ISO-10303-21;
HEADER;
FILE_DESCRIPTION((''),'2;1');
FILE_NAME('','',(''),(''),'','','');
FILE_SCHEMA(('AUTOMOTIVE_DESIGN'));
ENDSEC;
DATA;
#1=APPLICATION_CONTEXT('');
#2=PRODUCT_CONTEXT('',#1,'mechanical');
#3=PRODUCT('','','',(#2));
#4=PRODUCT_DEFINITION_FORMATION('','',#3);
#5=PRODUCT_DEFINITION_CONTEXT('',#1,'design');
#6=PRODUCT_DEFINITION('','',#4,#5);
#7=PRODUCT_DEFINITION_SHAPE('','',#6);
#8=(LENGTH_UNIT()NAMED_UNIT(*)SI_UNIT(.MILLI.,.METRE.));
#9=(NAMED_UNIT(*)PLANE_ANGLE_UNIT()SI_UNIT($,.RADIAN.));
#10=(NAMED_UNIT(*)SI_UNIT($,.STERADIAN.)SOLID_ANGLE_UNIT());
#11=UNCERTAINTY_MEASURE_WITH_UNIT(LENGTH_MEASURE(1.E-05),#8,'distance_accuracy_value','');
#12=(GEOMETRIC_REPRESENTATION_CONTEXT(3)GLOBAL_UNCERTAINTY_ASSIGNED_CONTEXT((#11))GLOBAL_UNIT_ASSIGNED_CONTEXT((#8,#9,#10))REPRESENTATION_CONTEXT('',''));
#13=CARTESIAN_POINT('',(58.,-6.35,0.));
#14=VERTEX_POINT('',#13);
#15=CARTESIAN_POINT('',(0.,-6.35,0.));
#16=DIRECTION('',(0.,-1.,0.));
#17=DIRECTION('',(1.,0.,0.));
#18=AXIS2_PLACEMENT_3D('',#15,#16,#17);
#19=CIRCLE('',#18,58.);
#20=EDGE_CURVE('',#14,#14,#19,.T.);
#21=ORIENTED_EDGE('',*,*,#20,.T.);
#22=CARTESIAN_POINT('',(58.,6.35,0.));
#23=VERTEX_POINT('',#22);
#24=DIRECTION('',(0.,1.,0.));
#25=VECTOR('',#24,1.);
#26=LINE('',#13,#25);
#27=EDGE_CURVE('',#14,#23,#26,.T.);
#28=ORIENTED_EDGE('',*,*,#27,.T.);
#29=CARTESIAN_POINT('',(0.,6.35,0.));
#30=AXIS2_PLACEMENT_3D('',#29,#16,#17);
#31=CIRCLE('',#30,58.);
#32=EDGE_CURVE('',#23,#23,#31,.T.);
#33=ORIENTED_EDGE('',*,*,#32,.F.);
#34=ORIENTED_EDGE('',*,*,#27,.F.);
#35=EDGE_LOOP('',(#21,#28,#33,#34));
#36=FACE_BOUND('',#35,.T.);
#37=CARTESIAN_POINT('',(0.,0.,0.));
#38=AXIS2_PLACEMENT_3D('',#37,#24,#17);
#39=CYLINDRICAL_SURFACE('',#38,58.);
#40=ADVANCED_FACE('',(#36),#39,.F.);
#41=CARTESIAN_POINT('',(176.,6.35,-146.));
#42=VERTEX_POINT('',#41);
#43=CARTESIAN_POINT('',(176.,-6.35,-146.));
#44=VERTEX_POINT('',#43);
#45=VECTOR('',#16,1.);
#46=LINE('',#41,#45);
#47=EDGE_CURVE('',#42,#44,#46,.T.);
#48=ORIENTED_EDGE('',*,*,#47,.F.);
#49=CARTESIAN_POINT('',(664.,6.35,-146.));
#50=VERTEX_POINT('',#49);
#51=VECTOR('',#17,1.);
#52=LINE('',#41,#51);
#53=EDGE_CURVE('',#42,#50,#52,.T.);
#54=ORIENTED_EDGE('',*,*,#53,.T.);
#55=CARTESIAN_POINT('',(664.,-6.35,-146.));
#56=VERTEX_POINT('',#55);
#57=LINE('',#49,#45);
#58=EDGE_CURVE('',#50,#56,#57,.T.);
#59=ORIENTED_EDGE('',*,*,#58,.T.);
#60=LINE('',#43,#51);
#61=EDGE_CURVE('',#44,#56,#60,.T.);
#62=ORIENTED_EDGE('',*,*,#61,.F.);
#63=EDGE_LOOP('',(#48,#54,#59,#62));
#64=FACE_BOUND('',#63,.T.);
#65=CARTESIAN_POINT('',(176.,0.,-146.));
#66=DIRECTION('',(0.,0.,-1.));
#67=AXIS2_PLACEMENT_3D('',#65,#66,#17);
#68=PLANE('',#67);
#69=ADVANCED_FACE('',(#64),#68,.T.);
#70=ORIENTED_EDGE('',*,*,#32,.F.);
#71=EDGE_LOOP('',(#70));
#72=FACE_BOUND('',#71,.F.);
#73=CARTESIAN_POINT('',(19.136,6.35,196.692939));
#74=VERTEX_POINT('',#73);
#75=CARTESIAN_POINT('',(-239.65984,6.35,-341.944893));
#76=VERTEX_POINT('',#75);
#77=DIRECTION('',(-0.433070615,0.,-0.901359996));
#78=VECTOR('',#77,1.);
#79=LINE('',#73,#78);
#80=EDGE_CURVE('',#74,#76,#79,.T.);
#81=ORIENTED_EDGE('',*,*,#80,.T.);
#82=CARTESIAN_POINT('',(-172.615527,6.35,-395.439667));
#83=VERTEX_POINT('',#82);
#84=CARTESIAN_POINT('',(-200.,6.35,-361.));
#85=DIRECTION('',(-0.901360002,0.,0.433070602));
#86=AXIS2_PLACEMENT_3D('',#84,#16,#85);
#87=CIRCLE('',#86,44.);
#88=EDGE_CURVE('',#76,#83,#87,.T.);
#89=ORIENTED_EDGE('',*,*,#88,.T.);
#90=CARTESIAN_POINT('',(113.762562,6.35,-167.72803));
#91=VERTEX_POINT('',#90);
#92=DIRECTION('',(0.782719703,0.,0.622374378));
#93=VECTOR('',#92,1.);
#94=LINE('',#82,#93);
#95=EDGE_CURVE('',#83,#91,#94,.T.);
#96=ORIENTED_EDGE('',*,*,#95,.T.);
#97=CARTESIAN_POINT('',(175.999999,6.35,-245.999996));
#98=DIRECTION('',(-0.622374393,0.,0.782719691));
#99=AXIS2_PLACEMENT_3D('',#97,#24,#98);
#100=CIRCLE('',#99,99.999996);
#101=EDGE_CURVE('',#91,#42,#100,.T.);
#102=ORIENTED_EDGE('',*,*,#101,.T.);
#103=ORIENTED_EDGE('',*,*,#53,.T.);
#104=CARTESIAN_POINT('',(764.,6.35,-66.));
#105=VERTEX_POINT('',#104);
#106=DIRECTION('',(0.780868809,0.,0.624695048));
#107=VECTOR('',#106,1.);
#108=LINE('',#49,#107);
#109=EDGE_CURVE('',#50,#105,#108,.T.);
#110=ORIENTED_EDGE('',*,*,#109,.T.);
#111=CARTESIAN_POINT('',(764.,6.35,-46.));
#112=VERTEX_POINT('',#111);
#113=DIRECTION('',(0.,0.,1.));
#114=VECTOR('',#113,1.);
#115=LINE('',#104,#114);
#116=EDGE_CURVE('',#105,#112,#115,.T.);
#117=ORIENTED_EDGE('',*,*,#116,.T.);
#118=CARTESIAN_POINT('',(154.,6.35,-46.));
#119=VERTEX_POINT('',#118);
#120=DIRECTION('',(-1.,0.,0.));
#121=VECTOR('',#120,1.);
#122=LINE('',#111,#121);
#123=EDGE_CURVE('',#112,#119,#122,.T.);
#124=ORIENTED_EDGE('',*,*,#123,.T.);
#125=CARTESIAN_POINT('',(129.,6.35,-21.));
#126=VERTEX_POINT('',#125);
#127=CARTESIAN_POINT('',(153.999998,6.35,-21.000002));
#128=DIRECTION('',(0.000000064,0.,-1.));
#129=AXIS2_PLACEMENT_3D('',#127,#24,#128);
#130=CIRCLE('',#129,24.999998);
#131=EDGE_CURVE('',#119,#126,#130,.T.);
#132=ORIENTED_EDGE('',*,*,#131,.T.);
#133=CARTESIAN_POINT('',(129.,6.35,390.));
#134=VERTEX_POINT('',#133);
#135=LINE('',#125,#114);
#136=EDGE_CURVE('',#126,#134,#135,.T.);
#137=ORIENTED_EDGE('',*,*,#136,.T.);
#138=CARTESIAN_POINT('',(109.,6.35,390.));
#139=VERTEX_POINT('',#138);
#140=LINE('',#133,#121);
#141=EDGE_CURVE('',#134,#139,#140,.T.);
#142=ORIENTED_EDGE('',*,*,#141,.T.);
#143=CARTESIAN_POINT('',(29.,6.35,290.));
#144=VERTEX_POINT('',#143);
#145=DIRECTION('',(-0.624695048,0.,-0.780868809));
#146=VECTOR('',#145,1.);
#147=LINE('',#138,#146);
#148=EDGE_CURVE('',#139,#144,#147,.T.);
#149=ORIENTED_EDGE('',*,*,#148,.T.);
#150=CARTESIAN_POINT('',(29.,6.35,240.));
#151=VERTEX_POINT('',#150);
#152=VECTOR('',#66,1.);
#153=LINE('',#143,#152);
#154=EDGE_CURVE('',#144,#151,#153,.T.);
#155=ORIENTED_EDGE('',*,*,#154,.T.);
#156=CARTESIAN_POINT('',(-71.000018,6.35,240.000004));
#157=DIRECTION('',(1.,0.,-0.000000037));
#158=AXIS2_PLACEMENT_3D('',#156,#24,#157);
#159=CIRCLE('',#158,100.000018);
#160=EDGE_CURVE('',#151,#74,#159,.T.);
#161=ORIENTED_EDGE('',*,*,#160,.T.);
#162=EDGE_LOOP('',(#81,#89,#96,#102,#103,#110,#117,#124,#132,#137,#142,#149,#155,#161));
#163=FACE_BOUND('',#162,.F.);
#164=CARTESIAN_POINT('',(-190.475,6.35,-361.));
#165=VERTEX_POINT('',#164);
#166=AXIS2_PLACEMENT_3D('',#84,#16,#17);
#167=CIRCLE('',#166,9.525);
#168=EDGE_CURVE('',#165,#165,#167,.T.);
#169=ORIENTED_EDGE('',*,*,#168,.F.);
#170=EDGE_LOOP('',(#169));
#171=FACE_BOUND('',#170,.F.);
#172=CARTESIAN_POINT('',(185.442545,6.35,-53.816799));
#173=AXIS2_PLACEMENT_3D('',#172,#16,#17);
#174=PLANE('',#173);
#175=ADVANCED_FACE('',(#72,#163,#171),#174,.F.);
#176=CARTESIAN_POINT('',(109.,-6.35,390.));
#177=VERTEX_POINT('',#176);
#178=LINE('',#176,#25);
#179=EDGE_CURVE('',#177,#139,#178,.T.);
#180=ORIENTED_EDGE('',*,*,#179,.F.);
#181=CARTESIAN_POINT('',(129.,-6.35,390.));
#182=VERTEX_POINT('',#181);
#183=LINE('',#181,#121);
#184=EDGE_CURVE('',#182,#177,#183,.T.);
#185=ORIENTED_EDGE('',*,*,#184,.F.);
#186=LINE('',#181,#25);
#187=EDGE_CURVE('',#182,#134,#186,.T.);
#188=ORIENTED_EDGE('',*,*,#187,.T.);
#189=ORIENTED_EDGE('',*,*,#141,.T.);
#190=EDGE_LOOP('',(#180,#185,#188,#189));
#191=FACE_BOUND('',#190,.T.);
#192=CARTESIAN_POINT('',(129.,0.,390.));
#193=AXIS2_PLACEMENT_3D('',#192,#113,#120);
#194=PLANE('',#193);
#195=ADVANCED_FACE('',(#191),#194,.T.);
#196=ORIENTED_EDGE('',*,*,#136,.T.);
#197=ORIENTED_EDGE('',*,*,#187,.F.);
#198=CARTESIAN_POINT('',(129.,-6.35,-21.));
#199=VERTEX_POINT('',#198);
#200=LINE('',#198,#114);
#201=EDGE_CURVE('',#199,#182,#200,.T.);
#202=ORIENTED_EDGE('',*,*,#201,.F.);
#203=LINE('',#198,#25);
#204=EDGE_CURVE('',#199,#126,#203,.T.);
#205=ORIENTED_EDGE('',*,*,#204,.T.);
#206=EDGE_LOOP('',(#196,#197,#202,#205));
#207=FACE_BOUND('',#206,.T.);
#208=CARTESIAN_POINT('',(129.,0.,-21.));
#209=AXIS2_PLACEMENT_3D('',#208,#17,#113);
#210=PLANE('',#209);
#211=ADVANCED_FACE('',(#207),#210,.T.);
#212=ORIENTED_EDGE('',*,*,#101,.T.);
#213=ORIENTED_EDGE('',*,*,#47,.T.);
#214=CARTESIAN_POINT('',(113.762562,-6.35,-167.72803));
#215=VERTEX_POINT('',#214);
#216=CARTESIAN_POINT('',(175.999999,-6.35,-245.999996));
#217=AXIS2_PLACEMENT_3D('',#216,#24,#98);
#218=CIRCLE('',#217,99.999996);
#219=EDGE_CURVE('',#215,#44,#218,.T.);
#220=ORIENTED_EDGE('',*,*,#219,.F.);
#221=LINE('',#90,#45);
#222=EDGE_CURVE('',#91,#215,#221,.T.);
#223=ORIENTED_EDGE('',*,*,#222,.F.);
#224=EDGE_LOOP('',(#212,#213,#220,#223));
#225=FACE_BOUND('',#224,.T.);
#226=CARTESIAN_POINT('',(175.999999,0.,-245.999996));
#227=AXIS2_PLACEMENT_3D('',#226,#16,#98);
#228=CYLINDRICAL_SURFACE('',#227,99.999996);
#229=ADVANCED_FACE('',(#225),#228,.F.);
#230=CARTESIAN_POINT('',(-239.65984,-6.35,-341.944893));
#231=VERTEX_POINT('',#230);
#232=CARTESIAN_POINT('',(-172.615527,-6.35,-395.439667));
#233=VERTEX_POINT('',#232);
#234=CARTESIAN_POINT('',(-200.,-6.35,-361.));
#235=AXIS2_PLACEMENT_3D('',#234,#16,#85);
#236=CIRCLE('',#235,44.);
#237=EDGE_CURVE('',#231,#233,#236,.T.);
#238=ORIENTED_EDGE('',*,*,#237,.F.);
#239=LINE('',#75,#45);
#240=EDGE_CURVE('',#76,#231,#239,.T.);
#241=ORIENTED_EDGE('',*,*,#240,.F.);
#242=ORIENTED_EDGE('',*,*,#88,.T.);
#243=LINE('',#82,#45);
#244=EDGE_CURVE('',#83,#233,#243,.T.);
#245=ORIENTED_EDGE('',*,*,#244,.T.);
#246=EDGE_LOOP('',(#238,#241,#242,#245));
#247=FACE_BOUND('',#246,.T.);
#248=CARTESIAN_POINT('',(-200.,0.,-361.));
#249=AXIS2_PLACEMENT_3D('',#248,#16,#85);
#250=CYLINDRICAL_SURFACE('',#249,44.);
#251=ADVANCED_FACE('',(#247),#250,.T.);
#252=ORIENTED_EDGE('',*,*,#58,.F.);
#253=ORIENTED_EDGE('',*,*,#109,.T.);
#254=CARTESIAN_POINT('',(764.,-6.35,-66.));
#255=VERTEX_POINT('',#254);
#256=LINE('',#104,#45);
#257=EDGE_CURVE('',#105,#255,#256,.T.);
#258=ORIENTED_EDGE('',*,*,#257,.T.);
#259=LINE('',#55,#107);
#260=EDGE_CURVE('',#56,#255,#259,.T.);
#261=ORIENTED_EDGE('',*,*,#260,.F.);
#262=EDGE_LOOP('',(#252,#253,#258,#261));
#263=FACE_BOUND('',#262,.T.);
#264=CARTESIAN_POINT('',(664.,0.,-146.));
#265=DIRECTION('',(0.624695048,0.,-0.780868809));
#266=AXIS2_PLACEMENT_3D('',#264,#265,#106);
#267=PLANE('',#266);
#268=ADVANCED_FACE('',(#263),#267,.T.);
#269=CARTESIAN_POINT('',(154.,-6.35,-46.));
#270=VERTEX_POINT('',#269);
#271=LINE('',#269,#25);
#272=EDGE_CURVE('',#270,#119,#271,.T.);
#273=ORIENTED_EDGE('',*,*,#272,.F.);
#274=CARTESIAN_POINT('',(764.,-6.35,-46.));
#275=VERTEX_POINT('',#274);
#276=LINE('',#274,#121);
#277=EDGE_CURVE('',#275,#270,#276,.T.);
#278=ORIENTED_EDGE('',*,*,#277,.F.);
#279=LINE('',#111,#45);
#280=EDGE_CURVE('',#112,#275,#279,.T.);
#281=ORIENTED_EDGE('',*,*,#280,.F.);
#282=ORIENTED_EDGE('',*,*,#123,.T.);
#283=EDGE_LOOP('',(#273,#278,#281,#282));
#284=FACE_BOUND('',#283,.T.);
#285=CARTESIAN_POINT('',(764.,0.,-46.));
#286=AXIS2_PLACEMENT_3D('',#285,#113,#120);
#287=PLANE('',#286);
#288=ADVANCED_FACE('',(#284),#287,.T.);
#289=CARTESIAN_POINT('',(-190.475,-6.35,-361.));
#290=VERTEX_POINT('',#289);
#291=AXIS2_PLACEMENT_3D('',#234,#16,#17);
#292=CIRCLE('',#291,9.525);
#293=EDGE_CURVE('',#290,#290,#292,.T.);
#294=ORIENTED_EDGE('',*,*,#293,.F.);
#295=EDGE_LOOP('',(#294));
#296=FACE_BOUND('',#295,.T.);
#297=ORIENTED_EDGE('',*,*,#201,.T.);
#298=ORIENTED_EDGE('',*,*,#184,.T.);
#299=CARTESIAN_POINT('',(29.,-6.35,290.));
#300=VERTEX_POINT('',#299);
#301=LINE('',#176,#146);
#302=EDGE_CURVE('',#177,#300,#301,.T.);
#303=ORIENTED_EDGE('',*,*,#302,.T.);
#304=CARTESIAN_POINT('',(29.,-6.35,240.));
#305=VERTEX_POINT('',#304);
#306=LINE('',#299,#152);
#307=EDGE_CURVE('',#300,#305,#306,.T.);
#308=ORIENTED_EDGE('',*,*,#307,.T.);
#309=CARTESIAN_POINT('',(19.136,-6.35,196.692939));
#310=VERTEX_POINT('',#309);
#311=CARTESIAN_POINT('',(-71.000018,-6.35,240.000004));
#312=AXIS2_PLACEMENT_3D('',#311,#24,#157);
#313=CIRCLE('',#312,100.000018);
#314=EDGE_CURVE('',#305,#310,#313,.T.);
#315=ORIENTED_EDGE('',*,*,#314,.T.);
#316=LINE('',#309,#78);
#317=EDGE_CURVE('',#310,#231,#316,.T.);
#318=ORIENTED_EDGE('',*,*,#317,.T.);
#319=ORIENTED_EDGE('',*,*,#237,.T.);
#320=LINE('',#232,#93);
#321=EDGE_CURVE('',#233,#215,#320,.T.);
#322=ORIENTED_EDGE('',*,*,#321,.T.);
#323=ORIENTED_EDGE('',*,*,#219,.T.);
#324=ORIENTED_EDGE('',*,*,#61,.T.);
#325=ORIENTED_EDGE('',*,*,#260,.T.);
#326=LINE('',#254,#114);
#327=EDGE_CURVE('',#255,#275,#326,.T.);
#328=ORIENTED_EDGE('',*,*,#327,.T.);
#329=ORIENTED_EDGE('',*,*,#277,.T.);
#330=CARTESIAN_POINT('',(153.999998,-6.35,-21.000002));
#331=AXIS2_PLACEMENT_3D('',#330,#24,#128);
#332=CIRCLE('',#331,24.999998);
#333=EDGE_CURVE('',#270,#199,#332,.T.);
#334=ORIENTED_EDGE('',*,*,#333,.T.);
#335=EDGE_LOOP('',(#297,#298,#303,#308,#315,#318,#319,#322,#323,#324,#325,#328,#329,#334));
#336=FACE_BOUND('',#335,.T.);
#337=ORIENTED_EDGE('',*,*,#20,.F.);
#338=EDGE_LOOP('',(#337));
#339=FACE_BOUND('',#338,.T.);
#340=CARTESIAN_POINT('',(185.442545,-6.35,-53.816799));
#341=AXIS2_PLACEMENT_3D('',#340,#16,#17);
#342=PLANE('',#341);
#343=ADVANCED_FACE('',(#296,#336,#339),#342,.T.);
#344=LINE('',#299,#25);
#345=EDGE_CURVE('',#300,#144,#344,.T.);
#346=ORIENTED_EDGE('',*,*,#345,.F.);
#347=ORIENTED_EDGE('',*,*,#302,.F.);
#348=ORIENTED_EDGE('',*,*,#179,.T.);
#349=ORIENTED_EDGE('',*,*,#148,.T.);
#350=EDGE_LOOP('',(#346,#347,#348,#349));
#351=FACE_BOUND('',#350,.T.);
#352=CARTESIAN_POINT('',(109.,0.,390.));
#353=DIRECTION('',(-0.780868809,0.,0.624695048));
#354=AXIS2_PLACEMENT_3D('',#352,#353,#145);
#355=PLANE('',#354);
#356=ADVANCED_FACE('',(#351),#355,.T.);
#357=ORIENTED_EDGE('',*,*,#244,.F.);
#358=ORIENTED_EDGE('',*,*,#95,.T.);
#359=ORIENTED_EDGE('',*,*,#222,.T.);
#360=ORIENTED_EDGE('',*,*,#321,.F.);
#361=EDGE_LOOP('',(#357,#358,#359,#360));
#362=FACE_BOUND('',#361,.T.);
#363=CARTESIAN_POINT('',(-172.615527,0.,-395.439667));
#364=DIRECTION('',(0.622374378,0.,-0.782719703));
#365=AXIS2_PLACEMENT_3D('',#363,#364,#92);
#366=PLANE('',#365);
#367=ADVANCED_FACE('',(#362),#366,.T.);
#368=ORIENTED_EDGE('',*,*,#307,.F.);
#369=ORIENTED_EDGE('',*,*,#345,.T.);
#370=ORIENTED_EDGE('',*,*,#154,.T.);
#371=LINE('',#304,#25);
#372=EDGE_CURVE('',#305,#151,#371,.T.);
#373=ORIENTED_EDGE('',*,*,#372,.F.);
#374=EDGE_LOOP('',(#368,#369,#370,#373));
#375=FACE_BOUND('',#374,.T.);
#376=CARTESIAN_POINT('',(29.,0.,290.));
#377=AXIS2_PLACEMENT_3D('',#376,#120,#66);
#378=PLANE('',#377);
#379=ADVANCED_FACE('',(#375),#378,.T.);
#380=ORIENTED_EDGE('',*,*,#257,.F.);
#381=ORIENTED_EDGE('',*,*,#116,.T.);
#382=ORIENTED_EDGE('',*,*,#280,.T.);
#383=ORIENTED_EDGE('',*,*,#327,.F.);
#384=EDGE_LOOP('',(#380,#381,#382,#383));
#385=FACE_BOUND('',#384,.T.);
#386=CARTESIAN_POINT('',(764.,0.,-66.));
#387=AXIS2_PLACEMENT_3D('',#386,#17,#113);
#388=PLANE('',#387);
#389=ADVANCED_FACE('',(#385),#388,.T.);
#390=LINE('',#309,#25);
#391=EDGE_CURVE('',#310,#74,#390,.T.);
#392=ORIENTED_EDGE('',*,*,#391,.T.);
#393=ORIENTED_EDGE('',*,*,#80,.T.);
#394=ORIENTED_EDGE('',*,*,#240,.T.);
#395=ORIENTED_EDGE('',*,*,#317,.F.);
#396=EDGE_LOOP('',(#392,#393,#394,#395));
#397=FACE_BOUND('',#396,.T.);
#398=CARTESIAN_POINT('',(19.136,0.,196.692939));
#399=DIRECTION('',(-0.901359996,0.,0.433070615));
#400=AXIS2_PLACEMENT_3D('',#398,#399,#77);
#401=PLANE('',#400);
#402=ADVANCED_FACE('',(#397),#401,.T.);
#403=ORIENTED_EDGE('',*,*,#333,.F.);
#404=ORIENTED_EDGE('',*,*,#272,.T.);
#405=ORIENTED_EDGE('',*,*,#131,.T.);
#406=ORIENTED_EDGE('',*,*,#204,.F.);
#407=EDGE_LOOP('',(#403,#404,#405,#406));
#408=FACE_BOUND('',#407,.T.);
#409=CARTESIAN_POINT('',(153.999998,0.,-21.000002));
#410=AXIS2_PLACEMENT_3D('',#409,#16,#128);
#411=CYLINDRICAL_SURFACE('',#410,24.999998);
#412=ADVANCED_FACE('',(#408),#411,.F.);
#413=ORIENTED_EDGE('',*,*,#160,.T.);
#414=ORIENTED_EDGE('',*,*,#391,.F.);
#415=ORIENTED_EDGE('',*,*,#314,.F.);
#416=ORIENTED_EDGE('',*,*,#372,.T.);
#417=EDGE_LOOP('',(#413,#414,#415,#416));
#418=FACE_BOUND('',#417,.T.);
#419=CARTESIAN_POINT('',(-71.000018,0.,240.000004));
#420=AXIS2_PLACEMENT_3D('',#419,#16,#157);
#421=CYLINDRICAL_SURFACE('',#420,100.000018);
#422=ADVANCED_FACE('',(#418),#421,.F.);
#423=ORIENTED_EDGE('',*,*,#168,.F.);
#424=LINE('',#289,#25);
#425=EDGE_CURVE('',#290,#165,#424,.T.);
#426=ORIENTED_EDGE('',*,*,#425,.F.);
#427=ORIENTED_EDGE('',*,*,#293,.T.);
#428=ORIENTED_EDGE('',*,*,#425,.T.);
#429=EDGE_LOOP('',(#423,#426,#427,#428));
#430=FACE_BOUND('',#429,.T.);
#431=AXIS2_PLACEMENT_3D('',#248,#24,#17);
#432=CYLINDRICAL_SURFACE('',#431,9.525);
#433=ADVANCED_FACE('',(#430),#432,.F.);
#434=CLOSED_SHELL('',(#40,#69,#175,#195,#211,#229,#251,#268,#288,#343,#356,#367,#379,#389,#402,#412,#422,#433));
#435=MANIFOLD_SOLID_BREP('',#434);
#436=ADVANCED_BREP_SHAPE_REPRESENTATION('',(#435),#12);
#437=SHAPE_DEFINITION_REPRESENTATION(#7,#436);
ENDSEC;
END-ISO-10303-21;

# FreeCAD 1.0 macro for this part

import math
import FreeCAD as App
import Part
import Sketcher

V = App.Vector

doc = App.newDocument("Part")
params = doc.addObject("Spreadsheet::Sheet", "Params")
for row, (alias, value) in enumerate([
    ("sketch1_diameter", "116 mm"),
    ("sketch1_radius", "44 mm"),
    ("sketch1_radius2", "24.999998 mm"),
    ("sketch1_diameter2", "19.05 mm"),
    ("sketch1_width", "488 mm"),
    ("pad1_length", "12.7 mm"),
], start=1):
    params.set(f"A{row}", alias)
    params.set(f"B{row}", "=" + value)
    params.setAlias(f"B{row}", alias)

body = doc.addObject("PartDesign::Body", "Body")

sketch1 = body.newObject("Sketcher::SketchObject", "Sketch")
sketch1.AttachmentSupport = (doc.getObject("XZ_Plane"), [""])
sketch1.MapMode = "FlatFace"
sketch1.addGeometry([
    Part.LineSegment(V(19, 197, 0), V(-240, -342, 0)),
    Part.ArcOfCircle(Part.Circle(V(-200, -361, 0), V(0, 0, 1), 44), math.radians(154), math.radians(308)),
    Part.LineSegment(V(-173, -395, 0), V(114, -168, 0)),
    Part.ArcOfCircle(Part.Circle(V(176, -246, 0), V(0, 0, 1), 100), math.radians(90), math.radians(128)),
    Part.LineSegment(V(176, -146, 0), V(664, -146, 0)),
    Part.LineSegment(V(664, -146, 0), V(764, -66, 0)),
    Part.LineSegment(V(764, -66, 0), V(764, -46, 0)),
    Part.LineSegment(V(764, -46, 0), V(154, -46, 0)),
    Part.ArcOfCircle(Part.Circle(V(154, -21, 0), V(0, 0, 1), 25), math.radians(180), math.radians(270)),
    Part.LineSegment(V(129, -21, 0), V(129, 390, 0)),
    Part.LineSegment(V(129, 390, 0), V(109, 390, 0)),
    Part.LineSegment(V(109, 390, 0), V(29, 290, 0)),
    Part.LineSegment(V(29, 290, 0), V(29, 240, 0)),
    Part.ArcOfCircle(Part.Circle(V(-71, 240, 0), V(0, 0, 1), 100), math.radians(-26), math.radians(0)),
    Part.Circle(V(-200, -361, 0), V(0, 0, 1), 10),
    Part.Circle(V(0, 0, 0), V(0, 0, 1), 58),
], False)
sketch1.addConstraint([
    Sketcher.Constraint("Tangent", 0, 2, 1, 1),
    Sketcher.Constraint("Tangent", 1, 2, 2, 1),
    Sketcher.Constraint("Tangent", 2, 2, 3, 2),
    Sketcher.Constraint("Tangent", 3, 1, 4, 1),
    Sketcher.Constraint("Coincident", 4, 2, 5, 1),
    Sketcher.Constraint("Coincident", 5, 2, 6, 1),
    Sketcher.Constraint("Coincident", 6, 2, 7, 1),
    Sketcher.Constraint("Tangent", 7, 2, 8, 2),
    Sketcher.Constraint("Tangent", 8, 1, 9, 1),
    Sketcher.Constraint("Coincident", 9, 2, 10, 1),
    Sketcher.Constraint("Coincident", 10, 2, 11, 1),
    Sketcher.Constraint("Coincident", 11, 2, 12, 1),
    Sketcher.Constraint("Tangent", 12, 2, 13, 2),
    Sketcher.Constraint("Tangent", 13, 1, 0, 1),
    Sketcher.Constraint("Horizontal", 4),
    Sketcher.Constraint("Vertical", 6),
    Sketcher.Constraint("Horizontal", 7),
    Sketcher.Constraint("Vertical", 9),
    Sketcher.Constraint("Horizontal", 10),
    Sketcher.Constraint("Vertical", 12),
    Sketcher.Constraint("Coincident", 15, 3, -1, 1),
    Sketcher.Constraint("Coincident", 14, 3, 1, 3),
    Sketcher.Constraint("Equal", 10, 6),
    Sketcher.Constraint("Equal", 5, 11),
    Sketcher.Constraint("Diameter", 15, 116.0),
    Sketcher.Constraint("Radius", 1, 44.0),
    Sketcher.Constraint("Radius", 8, 24.999998),
    Sketcher.Constraint("Diameter", 14, 19.05),
    Sketcher.Constraint("DistanceX", 4, 1, 4, 2, 488.0),
    Sketcher.Constraint("DistanceX", 7, 2, 7, 1, 610.0),
    Sketcher.Constraint("DistanceX", 10, 2, 10, 1, 20.0),
    Sketcher.Constraint("DistanceY", 9, 1, 9, 2, 411.0),
    Sketcher.Constraint("DistanceY", 12, 2, 12, 1, 50.0),
    Sketcher.Constraint("DistanceX", 1, 3, -1, 1, 200.0),
    Sketcher.Constraint("DistanceY", 1, 3, -1, 1, 361.0),
    Sketcher.Constraint("DistanceX", -1, 1, 3, 3, 175.999999),
    Sketcher.Constraint("DistanceX", -1, 1, 8, 3, 153.999998),
    Sketcher.Constraint("DistanceY", 8, 3, -1, 1, 21.000002),
    Sketcher.Constraint("DistanceY", 3, 1, -1, 1, 146.0),
    Sketcher.Constraint("DistanceX", -1, 1, 11, 2, 29.0),
    Sketcher.Constraint("DistanceY", 3, 3, 13, 3, 486.0),
    Sketcher.Constraint("Radius", 13, 100.000018),
])
sketch1.setExpression("Constraints[24]", "Params.sketch1_diameter")
sketch1.setExpression("Constraints[25]", "Params.sketch1_radius")
sketch1.setExpression("Constraints[26]", "Params.sketch1_radius2")
sketch1.setExpression("Constraints[27]", "Params.sketch1_diameter2")
sketch1.setExpression("Constraints[28]", "Params.sketch1_width")
pad1 = body.newObject("PartDesign::Pad", "Pad")
pad1.Profile = sketch1
pad1.setExpression("Length", "Params.pad1_length")
pad1.Midplane = True

doc.recompute()
